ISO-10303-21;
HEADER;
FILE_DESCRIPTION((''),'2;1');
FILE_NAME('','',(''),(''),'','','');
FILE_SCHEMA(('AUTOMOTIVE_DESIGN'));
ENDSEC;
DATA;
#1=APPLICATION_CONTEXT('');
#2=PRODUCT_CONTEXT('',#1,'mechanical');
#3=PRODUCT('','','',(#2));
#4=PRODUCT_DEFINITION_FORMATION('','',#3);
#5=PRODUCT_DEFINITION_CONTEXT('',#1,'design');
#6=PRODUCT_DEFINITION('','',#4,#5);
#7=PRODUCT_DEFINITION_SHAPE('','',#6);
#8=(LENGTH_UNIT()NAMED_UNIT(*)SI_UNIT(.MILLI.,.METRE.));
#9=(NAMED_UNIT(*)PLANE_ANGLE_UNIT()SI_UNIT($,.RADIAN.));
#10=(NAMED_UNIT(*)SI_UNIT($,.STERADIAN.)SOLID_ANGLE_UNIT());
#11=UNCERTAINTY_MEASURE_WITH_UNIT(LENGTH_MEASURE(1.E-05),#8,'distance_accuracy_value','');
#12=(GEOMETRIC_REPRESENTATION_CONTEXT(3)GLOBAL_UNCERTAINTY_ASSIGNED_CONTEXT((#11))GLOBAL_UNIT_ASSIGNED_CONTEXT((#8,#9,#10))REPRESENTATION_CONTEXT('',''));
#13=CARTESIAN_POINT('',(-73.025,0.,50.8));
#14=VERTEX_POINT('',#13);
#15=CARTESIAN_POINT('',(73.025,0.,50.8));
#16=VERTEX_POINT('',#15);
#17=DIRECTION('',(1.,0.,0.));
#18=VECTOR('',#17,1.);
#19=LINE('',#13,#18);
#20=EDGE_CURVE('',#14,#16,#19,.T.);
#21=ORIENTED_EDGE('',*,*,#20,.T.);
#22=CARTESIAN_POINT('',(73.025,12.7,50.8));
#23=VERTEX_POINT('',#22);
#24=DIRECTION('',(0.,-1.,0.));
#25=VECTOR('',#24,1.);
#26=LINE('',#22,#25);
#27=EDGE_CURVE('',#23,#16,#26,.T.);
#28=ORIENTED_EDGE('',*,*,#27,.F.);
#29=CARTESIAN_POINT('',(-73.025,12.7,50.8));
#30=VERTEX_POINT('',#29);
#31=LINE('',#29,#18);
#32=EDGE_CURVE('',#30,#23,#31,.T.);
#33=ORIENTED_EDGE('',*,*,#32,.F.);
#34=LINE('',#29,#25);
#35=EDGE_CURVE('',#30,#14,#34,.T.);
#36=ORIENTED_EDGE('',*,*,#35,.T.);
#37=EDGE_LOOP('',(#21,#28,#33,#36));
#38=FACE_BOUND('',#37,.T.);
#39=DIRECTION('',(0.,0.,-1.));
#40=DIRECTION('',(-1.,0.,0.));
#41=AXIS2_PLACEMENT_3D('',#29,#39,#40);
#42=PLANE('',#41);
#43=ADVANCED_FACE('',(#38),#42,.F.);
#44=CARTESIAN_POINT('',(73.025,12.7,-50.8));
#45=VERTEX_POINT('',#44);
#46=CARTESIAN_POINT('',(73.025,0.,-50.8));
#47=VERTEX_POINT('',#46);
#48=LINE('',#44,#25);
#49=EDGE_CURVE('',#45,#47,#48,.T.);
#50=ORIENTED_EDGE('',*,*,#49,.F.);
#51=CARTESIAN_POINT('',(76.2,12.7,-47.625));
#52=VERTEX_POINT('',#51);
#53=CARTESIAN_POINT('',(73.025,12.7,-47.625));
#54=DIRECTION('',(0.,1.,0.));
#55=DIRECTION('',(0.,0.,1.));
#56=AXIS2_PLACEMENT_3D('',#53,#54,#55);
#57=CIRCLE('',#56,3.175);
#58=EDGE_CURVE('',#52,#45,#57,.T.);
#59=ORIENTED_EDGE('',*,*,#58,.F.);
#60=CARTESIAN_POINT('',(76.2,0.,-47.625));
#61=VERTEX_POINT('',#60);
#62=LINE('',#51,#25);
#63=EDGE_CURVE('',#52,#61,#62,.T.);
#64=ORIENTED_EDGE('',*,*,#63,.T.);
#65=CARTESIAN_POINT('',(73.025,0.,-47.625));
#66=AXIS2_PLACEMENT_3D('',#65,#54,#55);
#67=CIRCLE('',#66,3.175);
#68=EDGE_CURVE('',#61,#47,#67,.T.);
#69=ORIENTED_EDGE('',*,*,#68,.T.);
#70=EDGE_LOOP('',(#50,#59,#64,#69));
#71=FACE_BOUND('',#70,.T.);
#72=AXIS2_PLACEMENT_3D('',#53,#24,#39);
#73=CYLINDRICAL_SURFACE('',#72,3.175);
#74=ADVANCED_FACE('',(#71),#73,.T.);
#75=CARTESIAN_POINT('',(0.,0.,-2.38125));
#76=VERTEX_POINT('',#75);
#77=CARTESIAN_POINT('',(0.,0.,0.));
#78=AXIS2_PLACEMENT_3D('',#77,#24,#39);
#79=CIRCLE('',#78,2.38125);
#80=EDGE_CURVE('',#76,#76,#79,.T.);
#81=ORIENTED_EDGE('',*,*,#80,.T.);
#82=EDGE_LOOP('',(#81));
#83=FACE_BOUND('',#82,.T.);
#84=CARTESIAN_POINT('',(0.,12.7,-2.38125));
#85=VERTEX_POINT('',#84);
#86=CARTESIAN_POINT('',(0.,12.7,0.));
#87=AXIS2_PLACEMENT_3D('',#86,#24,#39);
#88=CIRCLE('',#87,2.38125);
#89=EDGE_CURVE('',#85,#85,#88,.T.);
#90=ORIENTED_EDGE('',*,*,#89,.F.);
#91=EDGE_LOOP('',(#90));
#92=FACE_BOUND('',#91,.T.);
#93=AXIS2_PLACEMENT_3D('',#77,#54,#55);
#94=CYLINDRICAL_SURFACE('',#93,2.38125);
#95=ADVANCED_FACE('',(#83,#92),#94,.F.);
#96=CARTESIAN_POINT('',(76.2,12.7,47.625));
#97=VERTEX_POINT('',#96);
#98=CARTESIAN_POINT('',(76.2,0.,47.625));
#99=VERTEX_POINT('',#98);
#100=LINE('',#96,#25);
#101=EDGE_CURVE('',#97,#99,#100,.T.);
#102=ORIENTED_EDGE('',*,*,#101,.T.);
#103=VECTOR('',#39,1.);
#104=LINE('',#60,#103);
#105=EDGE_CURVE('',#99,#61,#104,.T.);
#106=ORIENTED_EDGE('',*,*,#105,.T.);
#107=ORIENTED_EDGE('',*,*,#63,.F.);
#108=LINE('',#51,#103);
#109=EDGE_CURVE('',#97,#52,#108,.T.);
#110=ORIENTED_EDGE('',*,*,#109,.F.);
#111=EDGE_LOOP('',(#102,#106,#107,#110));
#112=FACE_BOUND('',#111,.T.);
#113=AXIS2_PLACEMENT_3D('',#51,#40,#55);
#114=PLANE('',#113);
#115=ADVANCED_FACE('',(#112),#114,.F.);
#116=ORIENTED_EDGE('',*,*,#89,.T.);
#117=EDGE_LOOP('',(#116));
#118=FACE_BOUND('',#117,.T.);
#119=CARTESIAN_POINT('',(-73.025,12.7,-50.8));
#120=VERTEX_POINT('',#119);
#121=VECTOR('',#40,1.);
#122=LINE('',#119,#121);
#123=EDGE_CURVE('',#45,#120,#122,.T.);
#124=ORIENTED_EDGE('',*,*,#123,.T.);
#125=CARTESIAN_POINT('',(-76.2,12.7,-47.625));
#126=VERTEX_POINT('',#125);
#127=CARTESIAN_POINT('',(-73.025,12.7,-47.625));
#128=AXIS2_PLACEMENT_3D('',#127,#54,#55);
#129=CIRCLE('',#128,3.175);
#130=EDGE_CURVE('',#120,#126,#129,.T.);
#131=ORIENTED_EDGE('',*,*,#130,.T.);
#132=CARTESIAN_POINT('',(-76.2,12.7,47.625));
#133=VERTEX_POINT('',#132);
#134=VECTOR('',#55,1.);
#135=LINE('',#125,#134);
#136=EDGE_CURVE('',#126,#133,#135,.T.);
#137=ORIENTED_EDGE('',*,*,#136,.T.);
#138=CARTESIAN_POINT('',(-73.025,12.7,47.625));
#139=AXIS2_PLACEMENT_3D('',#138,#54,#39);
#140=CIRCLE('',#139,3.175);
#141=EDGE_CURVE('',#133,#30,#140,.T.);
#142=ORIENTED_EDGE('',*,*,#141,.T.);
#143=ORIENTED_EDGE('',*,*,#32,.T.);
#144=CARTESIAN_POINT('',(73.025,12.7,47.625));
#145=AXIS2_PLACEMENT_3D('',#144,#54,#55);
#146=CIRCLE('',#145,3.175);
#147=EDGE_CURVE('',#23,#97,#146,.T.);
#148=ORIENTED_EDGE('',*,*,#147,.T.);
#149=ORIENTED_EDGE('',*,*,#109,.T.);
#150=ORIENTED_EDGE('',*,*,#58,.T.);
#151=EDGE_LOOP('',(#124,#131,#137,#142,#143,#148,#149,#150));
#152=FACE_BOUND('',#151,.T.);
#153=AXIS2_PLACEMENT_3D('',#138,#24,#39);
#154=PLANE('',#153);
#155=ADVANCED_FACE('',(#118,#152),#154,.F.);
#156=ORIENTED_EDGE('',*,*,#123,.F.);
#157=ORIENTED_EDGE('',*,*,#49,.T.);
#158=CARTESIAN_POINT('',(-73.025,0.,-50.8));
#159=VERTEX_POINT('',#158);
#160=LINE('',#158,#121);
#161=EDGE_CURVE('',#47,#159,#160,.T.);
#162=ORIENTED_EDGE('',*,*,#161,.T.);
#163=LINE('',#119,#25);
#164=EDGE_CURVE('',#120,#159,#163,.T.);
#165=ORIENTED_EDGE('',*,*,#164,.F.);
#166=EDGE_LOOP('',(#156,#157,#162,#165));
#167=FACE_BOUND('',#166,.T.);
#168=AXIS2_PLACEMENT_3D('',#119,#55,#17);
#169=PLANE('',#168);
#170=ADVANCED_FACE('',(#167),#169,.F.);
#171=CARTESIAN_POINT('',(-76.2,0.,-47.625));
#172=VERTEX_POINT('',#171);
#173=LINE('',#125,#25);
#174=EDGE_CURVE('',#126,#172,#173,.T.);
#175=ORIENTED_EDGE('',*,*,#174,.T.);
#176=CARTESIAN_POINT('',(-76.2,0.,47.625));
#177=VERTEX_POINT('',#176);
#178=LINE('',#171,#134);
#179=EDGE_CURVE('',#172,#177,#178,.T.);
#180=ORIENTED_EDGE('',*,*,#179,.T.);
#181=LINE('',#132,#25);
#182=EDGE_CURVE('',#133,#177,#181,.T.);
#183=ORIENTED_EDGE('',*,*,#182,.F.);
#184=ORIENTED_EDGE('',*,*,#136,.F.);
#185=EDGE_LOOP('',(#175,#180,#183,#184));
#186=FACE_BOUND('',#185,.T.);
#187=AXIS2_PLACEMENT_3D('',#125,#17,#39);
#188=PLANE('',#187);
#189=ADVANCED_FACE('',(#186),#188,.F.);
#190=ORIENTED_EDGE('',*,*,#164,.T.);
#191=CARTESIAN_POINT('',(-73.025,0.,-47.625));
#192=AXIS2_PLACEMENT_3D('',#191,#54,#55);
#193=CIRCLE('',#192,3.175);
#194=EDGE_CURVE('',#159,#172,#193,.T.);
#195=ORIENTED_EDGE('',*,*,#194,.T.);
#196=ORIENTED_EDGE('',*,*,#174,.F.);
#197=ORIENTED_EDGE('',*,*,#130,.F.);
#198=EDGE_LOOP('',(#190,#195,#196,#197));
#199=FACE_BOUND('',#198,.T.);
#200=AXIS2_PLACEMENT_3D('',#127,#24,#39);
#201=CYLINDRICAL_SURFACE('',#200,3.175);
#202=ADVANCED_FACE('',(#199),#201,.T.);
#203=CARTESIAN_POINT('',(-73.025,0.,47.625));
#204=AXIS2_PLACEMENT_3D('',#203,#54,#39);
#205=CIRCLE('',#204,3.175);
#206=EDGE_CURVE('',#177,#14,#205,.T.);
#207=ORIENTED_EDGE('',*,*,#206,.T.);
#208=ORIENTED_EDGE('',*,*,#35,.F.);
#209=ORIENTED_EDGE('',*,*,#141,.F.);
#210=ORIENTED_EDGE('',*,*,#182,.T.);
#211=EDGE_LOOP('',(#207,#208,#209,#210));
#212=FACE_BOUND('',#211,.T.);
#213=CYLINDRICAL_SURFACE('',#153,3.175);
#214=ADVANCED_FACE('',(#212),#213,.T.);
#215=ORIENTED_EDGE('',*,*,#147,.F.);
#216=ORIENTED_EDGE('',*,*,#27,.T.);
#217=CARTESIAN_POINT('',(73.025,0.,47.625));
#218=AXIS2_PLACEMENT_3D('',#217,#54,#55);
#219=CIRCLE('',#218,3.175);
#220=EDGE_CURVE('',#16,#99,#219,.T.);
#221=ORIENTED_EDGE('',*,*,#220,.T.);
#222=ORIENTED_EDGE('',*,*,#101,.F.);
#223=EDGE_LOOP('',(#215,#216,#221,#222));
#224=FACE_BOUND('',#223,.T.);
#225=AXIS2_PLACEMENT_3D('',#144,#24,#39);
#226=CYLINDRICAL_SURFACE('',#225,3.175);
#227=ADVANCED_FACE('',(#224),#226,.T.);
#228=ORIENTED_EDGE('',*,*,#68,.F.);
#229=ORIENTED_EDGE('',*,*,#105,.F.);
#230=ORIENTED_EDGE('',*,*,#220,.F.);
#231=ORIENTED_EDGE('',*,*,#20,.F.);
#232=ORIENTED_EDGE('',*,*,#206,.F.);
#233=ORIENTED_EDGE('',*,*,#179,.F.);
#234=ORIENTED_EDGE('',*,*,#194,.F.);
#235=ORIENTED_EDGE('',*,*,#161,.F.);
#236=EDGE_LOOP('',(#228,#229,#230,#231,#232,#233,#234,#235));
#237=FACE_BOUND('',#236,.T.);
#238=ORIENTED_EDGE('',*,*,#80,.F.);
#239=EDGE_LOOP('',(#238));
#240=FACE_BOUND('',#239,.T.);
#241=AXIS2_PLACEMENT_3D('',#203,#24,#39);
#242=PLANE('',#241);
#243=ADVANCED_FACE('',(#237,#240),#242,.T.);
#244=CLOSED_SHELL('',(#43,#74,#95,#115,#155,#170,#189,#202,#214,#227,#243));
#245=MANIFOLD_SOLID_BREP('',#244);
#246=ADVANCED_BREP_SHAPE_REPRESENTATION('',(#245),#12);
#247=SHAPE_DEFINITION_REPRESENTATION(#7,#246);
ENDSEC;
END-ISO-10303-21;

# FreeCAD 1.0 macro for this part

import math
import FreeCAD as App
import Part
import Sketcher
from FreeCAD import Vector
Q = App.Units.Quantity

doc = App.newDocument("Part")
body = doc.addObject("PartDesign::Body", "Body")

# Sketch on XZ plane
sketch1 = body.newObject("Sketcher::SketchObject", "Sketch")
sketch1.AttachmentSupport = (doc.getObject("XZ_Plane"), [""])
sketch1.MapMode = "FlatFace"
sketch1.addGeometry(Part.LineSegment(Vector(73, -50.8, 0), Vector(-73, -50.8, 0)), False)
sketch1.addGeometry(Part.ArcOfCircle(Part.Circle(Vector(-73, -47.6, 0), Vector(0, 0, 1), 3.2), math.radians(-180), math.radians(-90)), False)
sketch1.addGeometry(Part.LineSegment(Vector(-76.2, -47.6, 0), Vector(-76.2, 47.6, 0)), False)
sketch1.addGeometry(Part.ArcOfCircle(Part.Circle(Vector(-73, 47.6, 0), Vector(0, 0, 1), 3.2), math.radians(90), math.radians(180)), False)
sketch1.addGeometry(Part.LineSegment(Vector(-73, 50.8, 0), Vector(73, 50.8, 0)), False)
sketch1.addGeometry(Part.ArcOfCircle(Part.Circle(Vector(73, 47.6, 0), Vector(0, 0, 1), 3.2), math.radians(0), math.radians(90)), False)
sketch1.addGeometry(Part.LineSegment(Vector(76.2, 47.6, 0), Vector(76.2, -47.6, 0)), False)
sketch1.addGeometry(Part.ArcOfCircle(Part.Circle(Vector(73, -47.6, 0), Vector(0, 0, 1), 3.2), math.radians(-90), math.radians(0)), False)
sketch1.addConstraint(Sketcher.Constraint("Tangent", 0, 2, 1, 2))
sketch1.addConstraint(Sketcher.Constraint("Tangent", 1, 1, 2, 1))
sketch1.addConstraint(Sketcher.Constraint("Tangent", 2, 2, 3, 2))
sketch1.addConstraint(Sketcher.Constraint("Tangent", 3, 1, 4, 1))
sketch1.addConstraint(Sketcher.Constraint("Tangent", 4, 2, 5, 2))
sketch1.addConstraint(Sketcher.Constraint("Tangent", 5, 1, 6, 1))
sketch1.addConstraint(Sketcher.Constraint("Tangent", 6, 2, 7, 2))
sketch1.addConstraint(Sketcher.Constraint("Tangent", 7, 1, 0, 1))
sketch1.addConstraint(Sketcher.Constraint("Horizontal", 0))
sketch1.addConstraint(Sketcher.Constraint("Vertical", 2))
sketch1.addConstraint(Sketcher.Constraint("Horizontal", 4))
sketch1.addConstraint(Sketcher.Constraint("Vertical", 6))
sketch1.addConstraint(Sketcher.Constraint("Equal", 1, 3))
sketch1.addConstraint(Sketcher.Constraint("Equal", 3, 5))
sketch1.addConstraint(Sketcher.Constraint("Equal", 5, 7))
sketch1.addConstraint(Sketcher.Constraint("Symmetric", 1, 3, 5, 3, -1, 1))
sketch1.addConstraint(Sketcher.Constraint("DistanceY", 0, 2, -1, 1, Q("2 in")))
sketch1.addConstraint(Sketcher.Constraint("DistanceX", 1, 1, -1, 1, Q("3 in")))
sketch1.addConstraint(Sketcher.Constraint("Radius", 1, Q("0.125 in")))
pad1 = body.newObject("PartDesign::Pad", "Pad")
pad1.Profile = sketch1
pad1.Length = Q("0.5 in")
pad1.Reversed = True

# Sketch on XZ plane
sketch2 = body.newObject("Sketcher::SketchObject", "Sketch001")
sketch2.AttachmentSupport = (doc.getObject("XZ_Plane"), [""])
sketch2.MapMode = "FlatFace"
sketch2.AttachmentOffset = App.Placement(Vector(0, 0, -0.5 * 25.4), App.Rotation())
sketch2.addGeometry(Part.Circle(Vector(0, 0, 0), Vector(0, 0, 1), 2.4), False)
sketch2.addConstraint(Sketcher.Constraint("Coincident", 0, 3, -1, 1))
sketch2.addConstraint(Sketcher.Constraint("Diameter", 0, Q("0.1875 in")))
pocket1 = body.newObject("PartDesign::Pocket", "Pocket")
pocket1.Profile = sketch2
pocket1.Type = "ThroughAll"
pocket1.Reversed = True

doc.recompute()
